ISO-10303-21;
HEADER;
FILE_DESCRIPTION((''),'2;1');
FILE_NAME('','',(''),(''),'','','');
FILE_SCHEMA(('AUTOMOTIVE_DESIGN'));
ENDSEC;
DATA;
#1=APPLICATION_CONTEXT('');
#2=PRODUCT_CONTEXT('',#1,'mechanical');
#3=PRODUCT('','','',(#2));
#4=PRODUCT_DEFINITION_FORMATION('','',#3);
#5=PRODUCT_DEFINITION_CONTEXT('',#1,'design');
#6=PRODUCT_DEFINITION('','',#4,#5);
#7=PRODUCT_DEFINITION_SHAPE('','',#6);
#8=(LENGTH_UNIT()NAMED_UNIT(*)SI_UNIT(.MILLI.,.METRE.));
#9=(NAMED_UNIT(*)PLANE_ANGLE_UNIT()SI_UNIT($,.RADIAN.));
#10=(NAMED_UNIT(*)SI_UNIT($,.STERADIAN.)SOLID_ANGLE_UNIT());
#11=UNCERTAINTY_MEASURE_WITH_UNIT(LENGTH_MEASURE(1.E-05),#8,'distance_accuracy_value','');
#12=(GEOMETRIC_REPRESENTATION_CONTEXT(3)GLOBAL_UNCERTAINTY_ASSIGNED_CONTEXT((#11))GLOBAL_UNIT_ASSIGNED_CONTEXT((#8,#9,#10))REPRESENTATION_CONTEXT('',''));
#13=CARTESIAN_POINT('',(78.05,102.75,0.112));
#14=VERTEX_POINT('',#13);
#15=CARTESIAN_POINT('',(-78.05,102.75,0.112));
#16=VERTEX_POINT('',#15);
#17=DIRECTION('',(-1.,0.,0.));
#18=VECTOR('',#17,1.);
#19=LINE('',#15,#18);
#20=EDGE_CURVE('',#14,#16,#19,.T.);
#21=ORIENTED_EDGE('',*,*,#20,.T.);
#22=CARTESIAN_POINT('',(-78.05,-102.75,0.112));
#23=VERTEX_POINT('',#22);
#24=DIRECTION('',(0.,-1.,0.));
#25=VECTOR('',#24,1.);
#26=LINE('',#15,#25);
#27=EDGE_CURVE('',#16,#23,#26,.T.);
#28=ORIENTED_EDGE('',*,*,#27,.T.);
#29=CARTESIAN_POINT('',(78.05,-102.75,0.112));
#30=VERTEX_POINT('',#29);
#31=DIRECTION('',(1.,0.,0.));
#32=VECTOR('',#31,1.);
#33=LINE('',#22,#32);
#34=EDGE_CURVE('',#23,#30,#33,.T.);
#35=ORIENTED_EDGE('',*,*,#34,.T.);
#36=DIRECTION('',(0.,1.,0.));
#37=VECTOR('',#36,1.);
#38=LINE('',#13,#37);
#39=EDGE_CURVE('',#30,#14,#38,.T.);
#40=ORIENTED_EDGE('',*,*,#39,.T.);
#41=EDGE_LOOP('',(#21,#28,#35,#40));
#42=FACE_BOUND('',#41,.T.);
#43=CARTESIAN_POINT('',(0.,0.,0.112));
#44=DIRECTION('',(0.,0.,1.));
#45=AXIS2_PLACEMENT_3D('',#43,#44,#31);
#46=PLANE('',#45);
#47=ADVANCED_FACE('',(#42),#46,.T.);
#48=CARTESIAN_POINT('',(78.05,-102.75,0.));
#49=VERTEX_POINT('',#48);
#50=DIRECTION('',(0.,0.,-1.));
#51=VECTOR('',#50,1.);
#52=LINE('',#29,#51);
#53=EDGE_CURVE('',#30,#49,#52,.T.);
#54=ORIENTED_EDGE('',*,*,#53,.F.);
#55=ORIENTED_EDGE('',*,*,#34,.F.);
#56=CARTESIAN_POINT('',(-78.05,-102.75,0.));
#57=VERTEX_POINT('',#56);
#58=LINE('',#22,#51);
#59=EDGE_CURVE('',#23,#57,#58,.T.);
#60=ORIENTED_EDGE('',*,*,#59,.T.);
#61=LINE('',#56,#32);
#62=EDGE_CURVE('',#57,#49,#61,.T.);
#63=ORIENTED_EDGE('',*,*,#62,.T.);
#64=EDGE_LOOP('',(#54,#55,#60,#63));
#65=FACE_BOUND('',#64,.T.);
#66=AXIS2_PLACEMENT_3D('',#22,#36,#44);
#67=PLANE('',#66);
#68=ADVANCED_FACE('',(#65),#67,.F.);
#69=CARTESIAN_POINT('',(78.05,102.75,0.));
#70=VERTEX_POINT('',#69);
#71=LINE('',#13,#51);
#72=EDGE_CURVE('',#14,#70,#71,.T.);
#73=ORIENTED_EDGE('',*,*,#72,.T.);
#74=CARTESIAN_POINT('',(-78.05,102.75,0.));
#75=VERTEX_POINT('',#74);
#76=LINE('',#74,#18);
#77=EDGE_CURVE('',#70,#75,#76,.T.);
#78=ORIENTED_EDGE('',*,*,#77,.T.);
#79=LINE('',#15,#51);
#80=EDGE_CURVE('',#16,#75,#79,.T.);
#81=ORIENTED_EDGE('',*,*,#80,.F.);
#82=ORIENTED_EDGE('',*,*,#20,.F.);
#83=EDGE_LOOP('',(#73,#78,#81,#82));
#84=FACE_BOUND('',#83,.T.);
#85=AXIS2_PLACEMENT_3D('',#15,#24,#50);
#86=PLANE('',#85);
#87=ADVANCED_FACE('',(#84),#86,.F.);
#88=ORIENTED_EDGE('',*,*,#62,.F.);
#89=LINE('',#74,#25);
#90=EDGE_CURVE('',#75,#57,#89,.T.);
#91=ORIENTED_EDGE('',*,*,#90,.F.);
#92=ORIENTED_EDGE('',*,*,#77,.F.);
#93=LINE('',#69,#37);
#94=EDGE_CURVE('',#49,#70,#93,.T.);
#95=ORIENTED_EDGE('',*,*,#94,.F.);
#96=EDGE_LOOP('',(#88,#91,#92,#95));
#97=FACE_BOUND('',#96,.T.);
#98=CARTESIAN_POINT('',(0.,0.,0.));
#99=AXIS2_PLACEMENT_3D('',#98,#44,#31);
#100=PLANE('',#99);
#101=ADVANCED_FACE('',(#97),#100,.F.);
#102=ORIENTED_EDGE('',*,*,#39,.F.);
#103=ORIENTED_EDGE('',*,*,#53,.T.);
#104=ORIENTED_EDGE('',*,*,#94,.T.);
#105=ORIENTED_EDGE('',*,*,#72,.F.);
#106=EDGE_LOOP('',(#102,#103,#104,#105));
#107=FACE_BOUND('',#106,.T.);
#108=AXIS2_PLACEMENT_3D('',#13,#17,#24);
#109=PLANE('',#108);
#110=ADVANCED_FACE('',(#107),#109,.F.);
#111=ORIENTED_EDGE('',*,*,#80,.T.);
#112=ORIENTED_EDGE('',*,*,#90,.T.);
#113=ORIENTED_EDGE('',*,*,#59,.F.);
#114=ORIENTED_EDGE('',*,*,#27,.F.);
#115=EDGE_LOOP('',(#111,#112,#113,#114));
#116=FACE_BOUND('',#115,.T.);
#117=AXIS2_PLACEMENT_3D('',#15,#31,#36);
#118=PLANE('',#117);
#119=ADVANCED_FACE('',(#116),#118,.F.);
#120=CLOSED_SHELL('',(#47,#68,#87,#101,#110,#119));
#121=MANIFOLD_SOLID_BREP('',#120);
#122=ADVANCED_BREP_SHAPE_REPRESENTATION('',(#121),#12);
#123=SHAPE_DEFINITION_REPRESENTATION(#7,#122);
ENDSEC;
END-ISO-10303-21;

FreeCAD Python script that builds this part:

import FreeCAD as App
import Part
import Sketcher
Q = App.Units.Quantity

doc = App.newDocument("Part")
body = doc.addObject("PartDesign::Body", "Body")

sketch1 = body.newObject("Sketcher::SketchObject", "Sketch")
sketch1.AttachmentSupport = (doc.getObject("XY_Plane"), [""])
sketch1.MapMode = "FlatFace"
sketch1.addGeometry(Part.LineSegment(App.Vector(-78, 103, 0), App.Vector(-78, -103, 0)), False)
sketch1.addGeometry(Part.LineSegment(App.Vector(-78, -103, 0), App.Vector(78, -103, 0)), False)
sketch1.addGeometry(Part.LineSegment(App.Vector(78, -103, 0), App.Vector(78, 103, 0)), False)
sketch1.addGeometry(Part.LineSegment(App.Vector(78, 103, 0), App.Vector(-78, 103, 0)), False)
sketch1.addConstraint(Sketcher.Constraint("Coincident", 0, 2, 1, 1))
sketch1.addConstraint(Sketcher.Constraint("Coincident", 1, 2, 2, 1))
sketch1.addConstraint(Sketcher.Constraint("Coincident", 2, 2, 3, 1))
sketch1.addConstraint(Sketcher.Constraint("Coincident", 3, 2, 0, 1))
sketch1.addConstraint(Sketcher.Constraint("Vertical", 0))
sketch1.addConstraint(Sketcher.Constraint("Horizontal", 1))
sketch1.addConstraint(Sketcher.Constraint("Vertical", 2))
sketch1.addConstraint(Sketcher.Constraint("Horizontal", 3))
sketch1.addConstraint(Sketcher.Constraint("Symmetric", 0, 2, 2, 2, -1, 1))
sketch1.addConstraint(Sketcher.Constraint("DistanceX", 1, 1, 1, 2, Q("156.1 mm")))
sketch1.addConstraint(Sketcher.Constraint("DistanceY", 0, 2, 0, 1, Q("205.5 mm")))
pad1 = body.newObject("PartDesign::Pad", "Pad")
pad1.Profile = sketch1
pad1.Length = 0.112

doc.recompute()
